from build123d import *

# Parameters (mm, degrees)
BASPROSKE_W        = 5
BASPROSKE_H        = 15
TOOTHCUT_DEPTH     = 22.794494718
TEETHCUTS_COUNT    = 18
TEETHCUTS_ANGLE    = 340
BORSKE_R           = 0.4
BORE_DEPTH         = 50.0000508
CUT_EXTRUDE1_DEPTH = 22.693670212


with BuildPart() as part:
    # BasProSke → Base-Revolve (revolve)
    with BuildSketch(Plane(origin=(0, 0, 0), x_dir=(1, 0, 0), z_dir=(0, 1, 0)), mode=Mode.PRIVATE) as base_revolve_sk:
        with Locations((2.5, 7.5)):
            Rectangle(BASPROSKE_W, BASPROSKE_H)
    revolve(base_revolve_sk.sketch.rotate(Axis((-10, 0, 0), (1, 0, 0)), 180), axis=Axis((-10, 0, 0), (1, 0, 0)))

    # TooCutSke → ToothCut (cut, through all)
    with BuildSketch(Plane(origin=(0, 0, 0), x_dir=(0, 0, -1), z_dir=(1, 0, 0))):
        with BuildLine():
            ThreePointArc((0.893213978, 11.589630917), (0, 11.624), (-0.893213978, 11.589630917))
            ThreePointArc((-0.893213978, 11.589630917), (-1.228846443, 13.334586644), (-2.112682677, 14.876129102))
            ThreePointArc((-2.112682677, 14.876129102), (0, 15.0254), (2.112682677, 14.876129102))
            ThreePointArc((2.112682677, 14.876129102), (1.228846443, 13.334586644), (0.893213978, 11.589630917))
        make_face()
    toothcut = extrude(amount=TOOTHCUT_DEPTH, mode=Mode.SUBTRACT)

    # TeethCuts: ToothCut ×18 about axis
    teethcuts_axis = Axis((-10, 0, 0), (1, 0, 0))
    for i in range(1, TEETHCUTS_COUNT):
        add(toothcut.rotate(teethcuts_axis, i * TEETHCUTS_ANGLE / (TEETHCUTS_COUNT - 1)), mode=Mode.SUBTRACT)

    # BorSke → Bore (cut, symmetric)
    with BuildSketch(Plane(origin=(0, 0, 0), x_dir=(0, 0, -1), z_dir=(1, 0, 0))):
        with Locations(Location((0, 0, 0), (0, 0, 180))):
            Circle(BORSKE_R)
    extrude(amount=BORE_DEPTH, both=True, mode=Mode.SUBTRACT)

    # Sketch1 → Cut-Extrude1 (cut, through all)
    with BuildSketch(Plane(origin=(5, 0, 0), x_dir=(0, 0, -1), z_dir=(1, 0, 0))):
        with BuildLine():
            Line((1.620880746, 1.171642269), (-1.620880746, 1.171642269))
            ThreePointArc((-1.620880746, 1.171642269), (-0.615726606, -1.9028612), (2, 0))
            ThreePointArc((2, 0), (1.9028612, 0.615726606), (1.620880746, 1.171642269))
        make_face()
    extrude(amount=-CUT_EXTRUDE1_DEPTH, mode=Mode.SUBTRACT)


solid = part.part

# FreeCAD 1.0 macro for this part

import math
import FreeCAD as App
import Part
import Sketcher


def add_polygon(sketch, points):
    """Adds a closed chain of lines whose ends are joined by coincident constraints."""
    first, n = sketch.GeometryCount, len(points)
    for a, b in zip(points, points[1:] + points[:1]):
        sketch.addGeometry(Part.LineSegment(App.Vector(*a, 0), App.Vector(*b, 0)), False)
    for i in range(n):
        sketch.addConstraint(Sketcher.Constraint("Coincident", first + i, 2, first + (i + 1) % n, 1))

doc = App.newDocument("Part")
body = doc.addObject("PartDesign::Body", "Body")

sketch1 = body.newObject("Sketcher::SketchObject", "Sketch")
sketch1.AttachmentSupport = (doc.getObject("XZ_Plane"), [""])
sketch1.MapMode = "FlatFace"
add_polygon(sketch1, [(0, -15), (0, 0), (5, 0), (5, -15)])
sketch1.addConstraint([
    Sketcher.Constraint("Vertical", 0),
    Sketcher.Constraint("Horizontal", 1),
    Sketcher.Constraint("Vertical", 2),
    Sketcher.Constraint("Horizontal", 3),
    Sketcher.Constraint("Coincident", 0, 2, -1, 1),
    Sketcher.Constraint("DistanceX", 1, 1, 1, 2, 5.0),
    Sketcher.Constraint("DistanceY", 0, 1, 0, 2, 15.0),
])
revolution = body.newObject("PartDesign::Revolution", "Revolution")
revolution.Profile = sketch1
revolution.ReferenceAxis = (sketch1, ["H_Axis"])
revolution.Angle = 360

sketch2 = body.newObject("Sketcher::SketchObject", "Sketch001")
sketch2.AttachmentSupport = (doc.getObject("YZ_Plane"), [""])
sketch2.MapMode = "FlatFace"
sketch2.addGeometry([
    Part.ArcOfCircle(Part.Circle(App.Vector(0, 0, 0), App.Vector(0, 0, 1), 11.6), math.radians(-4.41), math.radians(4.41)),
    Part.ArcOfCircle(Part.Circle(App.Vector(11.5, -6.3, 0), App.Vector(0, 0, 1), 5.4), math.radians(51), math.radians(89)),
    Part.ArcOfCircle(Part.Circle(App.Vector(0, 0, 0), App.Vector(0, 0, 1), 15), math.radians(-8.08), math.radians(8.08)),
    Part.ArcOfCircle(Part.Circle(App.Vector(11.5, 6.3, 0), App.Vector(0, 0, 1), 5.4), math.radians(-89), math.radians(-51)),
], False)
sketch2.addConstraint([
    Sketcher.Constraint("Coincident", 0, 1, 1, 2),
    Sketcher.Constraint("Coincident", 1, 1, 2, 1),
    Sketcher.Constraint("Coincident", 2, 2, 3, 2),
    Sketcher.Constraint("Coincident", 3, 1, 0, 2),
    Sketcher.Constraint("Coincident", 0, 3, -1, 1),
    Sketcher.Constraint("Coincident", 2, 3, -1, 1),
    Sketcher.Constraint("Equal", 1, 3),
    Sketcher.Constraint("Symmetric", 1, 3, 3, 3, -1),
    Sketcher.Constraint("Radius", 1, 5.4),
    Sketcher.Constraint("Radius", 0, 11.624),
    Sketcher.Constraint("Radius", 2, 15.0254),
    Sketcher.Constraint("DistanceX", 0, 1, 1, 1, 3.286498),
    Sketcher.Constraint("DistanceY", 1, 3, -1, 1, 6.291561),
])
pocket1 = body.newObject("PartDesign::Pocket", "Pocket")
pocket1.Profile = sketch2
pocket1.Type = "ThroughAll"
pocket1.Reversed = True
doc.recompute()

polarpattern = body.newObject("PartDesign::PolarPattern", "PolarPattern")
polarpattern.Originals = [pocket1]
polarpattern.Axis = (doc.getObject("X_Axis"), [""])
polarpattern.Angle = 360
polarpattern.Occurrences = 18
body.Tip = polarpattern

sketch3 = body.newObject("Sketcher::SketchObject", "Sketch002")
sketch3.AttachmentSupport = (doc.getObject("YZ_Plane"), [""])
sketch3.MapMode = "FlatFace"
sketch3.addGeometry(Part.Circle(App.Vector(0, 0, 0), App.Vector(0, 0, 1), 0.4), False)
sketch3.addConstraint([
    Sketcher.Constraint("Coincident", 0, 3, -1, 1),
    Sketcher.Constraint("Diameter", 0, 0.8),
])
pocket2 = body.newObject("PartDesign::Pocket", "Pocket001")
pocket2.Profile = sketch3
pocket2.Length = 100.000102
pocket2.Midplane = True

sketch4 = body.newObject("Sketcher::SketchObject", "Sketch003")
sketch4.AttachmentSupport = (doc.getObject("YZ_Plane"), [""])
sketch4.MapMode = "FlatFace"
sketch4.AttachmentOffset = App.Placement(App.Vector(0, 0, 5), App.Rotation())
sketch4.addGeometry([
    Part.LineSegment(App.Vector(1.2, -1.6, 0), App.Vector(1.2, 1.6, 0)),
    Part.ArcOfCircle(Part.Circle(App.Vector(0, 0, 0), App.Vector(0, 0, 1), 2), math.radians(54), math.radians(270)),
    Part.ArcOfCircle(Part.Circle(App.Vector(0, 0, 0), App.Vector(0, 0, 1), 2), math.radians(-90), math.radians(-54)),
], False)
sketch4.addConstraint([
    Sketcher.Constraint("Coincident", 0, 2, 1, 1),
    Sketcher.Constraint("Tangent", 1, 2, 2, 1),
    Sketcher.Constraint("Coincident", 2, 2, 0, 1),
    Sketcher.Constraint("Vertical", 0),
    Sketcher.Constraint("Coincident", 1, 3, -1, 1),
    Sketcher.Constraint("Equal", 1, 2),
    Sketcher.Constraint("PointOnObject", 1, 2, -2),
    Sketcher.Constraint("Radius", 1, 2.0),
    Sketcher.Constraint("DistanceY", 0, 1, 0, 2, 3.241761),
])
pocket3 = body.newObject("PartDesign::Pocket", "Pocket002")
pocket3.Profile = sketch4
pocket3.Type = "ThroughAll"

doc.recompute()
